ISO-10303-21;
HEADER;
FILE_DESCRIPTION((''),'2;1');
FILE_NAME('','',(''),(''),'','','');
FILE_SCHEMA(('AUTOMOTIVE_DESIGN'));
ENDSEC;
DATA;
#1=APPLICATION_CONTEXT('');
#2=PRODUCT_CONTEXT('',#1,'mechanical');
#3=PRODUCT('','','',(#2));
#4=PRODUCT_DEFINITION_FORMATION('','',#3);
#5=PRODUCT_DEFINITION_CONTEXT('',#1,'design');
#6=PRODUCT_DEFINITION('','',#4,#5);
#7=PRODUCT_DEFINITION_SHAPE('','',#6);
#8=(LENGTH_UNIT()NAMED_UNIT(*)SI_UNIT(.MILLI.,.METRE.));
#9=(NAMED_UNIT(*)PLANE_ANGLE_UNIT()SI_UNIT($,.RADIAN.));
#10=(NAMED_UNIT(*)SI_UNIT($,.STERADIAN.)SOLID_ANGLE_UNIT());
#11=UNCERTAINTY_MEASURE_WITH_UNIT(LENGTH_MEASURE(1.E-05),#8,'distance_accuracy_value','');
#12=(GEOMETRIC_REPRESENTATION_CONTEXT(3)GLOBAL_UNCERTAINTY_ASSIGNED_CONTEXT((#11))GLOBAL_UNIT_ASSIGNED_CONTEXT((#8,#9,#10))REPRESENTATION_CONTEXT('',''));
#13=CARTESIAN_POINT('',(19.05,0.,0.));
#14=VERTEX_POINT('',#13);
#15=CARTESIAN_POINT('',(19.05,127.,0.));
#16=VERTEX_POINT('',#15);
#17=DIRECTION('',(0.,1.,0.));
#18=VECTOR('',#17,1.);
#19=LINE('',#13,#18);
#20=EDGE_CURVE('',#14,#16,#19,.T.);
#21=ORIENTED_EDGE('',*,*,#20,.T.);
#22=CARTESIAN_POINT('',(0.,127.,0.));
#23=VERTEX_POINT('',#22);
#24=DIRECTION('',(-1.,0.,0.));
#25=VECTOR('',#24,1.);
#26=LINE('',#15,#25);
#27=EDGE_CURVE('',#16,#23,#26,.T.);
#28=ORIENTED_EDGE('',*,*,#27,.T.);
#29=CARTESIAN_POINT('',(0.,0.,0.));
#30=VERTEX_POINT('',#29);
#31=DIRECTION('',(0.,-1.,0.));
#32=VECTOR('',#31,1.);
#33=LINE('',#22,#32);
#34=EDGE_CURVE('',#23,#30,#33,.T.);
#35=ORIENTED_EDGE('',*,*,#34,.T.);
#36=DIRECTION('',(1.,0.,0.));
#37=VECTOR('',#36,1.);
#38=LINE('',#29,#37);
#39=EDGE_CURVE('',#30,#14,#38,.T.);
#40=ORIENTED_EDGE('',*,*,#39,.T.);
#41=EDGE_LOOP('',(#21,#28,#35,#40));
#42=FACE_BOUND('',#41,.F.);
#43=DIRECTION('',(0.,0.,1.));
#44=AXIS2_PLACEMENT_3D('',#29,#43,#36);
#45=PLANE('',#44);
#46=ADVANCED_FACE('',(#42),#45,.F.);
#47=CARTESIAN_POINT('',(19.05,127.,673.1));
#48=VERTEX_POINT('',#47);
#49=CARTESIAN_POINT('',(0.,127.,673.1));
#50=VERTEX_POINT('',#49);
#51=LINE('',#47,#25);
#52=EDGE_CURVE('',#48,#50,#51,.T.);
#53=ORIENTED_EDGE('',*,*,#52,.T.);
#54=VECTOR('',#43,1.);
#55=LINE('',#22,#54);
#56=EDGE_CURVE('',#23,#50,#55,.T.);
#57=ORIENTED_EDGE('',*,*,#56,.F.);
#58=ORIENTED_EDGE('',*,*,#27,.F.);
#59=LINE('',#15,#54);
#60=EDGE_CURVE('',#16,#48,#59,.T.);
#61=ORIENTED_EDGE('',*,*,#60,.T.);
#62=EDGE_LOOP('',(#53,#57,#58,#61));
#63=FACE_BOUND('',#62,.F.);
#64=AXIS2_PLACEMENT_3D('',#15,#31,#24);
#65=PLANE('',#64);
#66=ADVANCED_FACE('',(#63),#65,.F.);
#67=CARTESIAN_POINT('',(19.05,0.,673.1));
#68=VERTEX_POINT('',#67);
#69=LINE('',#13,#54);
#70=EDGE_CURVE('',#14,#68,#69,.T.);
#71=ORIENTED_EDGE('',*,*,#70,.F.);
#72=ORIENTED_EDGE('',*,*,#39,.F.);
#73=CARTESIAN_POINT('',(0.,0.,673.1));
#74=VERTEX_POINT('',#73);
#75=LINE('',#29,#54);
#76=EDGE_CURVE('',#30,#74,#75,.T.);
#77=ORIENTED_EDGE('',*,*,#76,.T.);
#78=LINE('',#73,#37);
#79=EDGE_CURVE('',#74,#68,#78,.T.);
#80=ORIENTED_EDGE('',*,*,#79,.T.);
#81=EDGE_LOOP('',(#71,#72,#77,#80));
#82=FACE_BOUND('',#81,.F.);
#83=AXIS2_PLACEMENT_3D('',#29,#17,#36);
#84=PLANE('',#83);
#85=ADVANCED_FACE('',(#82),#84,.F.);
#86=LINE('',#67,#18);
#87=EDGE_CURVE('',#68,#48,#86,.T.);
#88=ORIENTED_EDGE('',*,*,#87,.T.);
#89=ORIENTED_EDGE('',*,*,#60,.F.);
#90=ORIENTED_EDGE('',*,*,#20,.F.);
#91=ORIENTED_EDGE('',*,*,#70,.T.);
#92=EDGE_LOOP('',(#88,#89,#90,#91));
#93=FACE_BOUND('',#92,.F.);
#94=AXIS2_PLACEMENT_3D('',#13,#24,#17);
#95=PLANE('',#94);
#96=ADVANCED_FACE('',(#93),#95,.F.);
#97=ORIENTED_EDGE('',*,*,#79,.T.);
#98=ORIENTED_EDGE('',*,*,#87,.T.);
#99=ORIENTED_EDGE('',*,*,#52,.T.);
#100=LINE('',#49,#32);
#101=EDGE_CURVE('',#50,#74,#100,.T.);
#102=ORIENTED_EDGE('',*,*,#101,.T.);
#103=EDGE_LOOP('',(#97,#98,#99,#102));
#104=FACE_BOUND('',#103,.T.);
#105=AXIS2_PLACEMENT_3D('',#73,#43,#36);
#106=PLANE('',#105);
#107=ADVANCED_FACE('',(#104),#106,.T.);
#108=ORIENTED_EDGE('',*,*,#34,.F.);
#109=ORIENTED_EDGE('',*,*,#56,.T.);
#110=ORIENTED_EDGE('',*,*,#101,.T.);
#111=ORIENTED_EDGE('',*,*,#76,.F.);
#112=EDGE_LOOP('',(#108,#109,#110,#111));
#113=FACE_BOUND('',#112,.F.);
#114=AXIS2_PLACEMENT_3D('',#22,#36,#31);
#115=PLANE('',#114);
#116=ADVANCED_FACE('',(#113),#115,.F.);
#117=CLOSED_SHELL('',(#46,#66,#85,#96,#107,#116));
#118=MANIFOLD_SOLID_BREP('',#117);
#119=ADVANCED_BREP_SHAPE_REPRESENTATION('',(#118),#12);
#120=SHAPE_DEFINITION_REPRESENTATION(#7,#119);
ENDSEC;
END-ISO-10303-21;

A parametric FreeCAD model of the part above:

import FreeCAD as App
import Part
import Sketcher

V = App.Vector
Q = App.Units.Quantity


def add_polygon(sketch, points):
    """Adds a closed chain of lines whose ends are joined by coincident constraints."""
    first, n = sketch.GeometryCount, len(points)
    for a, b in zip(points, points[1:] + points[:1]):
        sketch.addGeometry(Part.LineSegment(App.Vector(*a, 0), App.Vector(*b, 0)), False)
    for i in range(n):
        sketch.addConstraint(Sketcher.Constraint("Coincident", first + i, 2, first + (i + 1) % n, 1))

doc = App.newDocument("Part")
body = doc.addObject("PartDesign::Body", "Body")

# Sketch on XY plane
sketch1 = body.newObject("Sketcher::SketchObject", "Sketch")
sketch1.AttachmentSupport = (doc.getObject("XY_Plane"), [""])
sketch1.MapMode = "FlatFace"
add_polygon(sketch1, [(0, 127), (0, 0), (19, 0), (19, 127)])  # lines 0-3
sketch1.addConstraint(Sketcher.Constraint("Vertical", 0))
sketch1.addConstraint(Sketcher.Constraint("Horizontal", 1))
sketch1.addConstraint(Sketcher.Constraint("Vertical", 2))
sketch1.addConstraint(Sketcher.Constraint("Horizontal", 3))
sketch1.addConstraint(Sketcher.Constraint("Coincident", 0, 2, -1, 1))
sketch1.addConstraint(Sketcher.Constraint("DistanceY", 0, 2, 0, 1, Q("5 in")))
sketch1.addConstraint(Sketcher.Constraint("DistanceX", 1, 1, 1, 2, Q("0.75 in")))
pad1 = body.newObject("PartDesign::Pad", "Pad")
pad1.Profile = sketch1
pad1.Length = Q("26.5 in")

doc.recompute()
